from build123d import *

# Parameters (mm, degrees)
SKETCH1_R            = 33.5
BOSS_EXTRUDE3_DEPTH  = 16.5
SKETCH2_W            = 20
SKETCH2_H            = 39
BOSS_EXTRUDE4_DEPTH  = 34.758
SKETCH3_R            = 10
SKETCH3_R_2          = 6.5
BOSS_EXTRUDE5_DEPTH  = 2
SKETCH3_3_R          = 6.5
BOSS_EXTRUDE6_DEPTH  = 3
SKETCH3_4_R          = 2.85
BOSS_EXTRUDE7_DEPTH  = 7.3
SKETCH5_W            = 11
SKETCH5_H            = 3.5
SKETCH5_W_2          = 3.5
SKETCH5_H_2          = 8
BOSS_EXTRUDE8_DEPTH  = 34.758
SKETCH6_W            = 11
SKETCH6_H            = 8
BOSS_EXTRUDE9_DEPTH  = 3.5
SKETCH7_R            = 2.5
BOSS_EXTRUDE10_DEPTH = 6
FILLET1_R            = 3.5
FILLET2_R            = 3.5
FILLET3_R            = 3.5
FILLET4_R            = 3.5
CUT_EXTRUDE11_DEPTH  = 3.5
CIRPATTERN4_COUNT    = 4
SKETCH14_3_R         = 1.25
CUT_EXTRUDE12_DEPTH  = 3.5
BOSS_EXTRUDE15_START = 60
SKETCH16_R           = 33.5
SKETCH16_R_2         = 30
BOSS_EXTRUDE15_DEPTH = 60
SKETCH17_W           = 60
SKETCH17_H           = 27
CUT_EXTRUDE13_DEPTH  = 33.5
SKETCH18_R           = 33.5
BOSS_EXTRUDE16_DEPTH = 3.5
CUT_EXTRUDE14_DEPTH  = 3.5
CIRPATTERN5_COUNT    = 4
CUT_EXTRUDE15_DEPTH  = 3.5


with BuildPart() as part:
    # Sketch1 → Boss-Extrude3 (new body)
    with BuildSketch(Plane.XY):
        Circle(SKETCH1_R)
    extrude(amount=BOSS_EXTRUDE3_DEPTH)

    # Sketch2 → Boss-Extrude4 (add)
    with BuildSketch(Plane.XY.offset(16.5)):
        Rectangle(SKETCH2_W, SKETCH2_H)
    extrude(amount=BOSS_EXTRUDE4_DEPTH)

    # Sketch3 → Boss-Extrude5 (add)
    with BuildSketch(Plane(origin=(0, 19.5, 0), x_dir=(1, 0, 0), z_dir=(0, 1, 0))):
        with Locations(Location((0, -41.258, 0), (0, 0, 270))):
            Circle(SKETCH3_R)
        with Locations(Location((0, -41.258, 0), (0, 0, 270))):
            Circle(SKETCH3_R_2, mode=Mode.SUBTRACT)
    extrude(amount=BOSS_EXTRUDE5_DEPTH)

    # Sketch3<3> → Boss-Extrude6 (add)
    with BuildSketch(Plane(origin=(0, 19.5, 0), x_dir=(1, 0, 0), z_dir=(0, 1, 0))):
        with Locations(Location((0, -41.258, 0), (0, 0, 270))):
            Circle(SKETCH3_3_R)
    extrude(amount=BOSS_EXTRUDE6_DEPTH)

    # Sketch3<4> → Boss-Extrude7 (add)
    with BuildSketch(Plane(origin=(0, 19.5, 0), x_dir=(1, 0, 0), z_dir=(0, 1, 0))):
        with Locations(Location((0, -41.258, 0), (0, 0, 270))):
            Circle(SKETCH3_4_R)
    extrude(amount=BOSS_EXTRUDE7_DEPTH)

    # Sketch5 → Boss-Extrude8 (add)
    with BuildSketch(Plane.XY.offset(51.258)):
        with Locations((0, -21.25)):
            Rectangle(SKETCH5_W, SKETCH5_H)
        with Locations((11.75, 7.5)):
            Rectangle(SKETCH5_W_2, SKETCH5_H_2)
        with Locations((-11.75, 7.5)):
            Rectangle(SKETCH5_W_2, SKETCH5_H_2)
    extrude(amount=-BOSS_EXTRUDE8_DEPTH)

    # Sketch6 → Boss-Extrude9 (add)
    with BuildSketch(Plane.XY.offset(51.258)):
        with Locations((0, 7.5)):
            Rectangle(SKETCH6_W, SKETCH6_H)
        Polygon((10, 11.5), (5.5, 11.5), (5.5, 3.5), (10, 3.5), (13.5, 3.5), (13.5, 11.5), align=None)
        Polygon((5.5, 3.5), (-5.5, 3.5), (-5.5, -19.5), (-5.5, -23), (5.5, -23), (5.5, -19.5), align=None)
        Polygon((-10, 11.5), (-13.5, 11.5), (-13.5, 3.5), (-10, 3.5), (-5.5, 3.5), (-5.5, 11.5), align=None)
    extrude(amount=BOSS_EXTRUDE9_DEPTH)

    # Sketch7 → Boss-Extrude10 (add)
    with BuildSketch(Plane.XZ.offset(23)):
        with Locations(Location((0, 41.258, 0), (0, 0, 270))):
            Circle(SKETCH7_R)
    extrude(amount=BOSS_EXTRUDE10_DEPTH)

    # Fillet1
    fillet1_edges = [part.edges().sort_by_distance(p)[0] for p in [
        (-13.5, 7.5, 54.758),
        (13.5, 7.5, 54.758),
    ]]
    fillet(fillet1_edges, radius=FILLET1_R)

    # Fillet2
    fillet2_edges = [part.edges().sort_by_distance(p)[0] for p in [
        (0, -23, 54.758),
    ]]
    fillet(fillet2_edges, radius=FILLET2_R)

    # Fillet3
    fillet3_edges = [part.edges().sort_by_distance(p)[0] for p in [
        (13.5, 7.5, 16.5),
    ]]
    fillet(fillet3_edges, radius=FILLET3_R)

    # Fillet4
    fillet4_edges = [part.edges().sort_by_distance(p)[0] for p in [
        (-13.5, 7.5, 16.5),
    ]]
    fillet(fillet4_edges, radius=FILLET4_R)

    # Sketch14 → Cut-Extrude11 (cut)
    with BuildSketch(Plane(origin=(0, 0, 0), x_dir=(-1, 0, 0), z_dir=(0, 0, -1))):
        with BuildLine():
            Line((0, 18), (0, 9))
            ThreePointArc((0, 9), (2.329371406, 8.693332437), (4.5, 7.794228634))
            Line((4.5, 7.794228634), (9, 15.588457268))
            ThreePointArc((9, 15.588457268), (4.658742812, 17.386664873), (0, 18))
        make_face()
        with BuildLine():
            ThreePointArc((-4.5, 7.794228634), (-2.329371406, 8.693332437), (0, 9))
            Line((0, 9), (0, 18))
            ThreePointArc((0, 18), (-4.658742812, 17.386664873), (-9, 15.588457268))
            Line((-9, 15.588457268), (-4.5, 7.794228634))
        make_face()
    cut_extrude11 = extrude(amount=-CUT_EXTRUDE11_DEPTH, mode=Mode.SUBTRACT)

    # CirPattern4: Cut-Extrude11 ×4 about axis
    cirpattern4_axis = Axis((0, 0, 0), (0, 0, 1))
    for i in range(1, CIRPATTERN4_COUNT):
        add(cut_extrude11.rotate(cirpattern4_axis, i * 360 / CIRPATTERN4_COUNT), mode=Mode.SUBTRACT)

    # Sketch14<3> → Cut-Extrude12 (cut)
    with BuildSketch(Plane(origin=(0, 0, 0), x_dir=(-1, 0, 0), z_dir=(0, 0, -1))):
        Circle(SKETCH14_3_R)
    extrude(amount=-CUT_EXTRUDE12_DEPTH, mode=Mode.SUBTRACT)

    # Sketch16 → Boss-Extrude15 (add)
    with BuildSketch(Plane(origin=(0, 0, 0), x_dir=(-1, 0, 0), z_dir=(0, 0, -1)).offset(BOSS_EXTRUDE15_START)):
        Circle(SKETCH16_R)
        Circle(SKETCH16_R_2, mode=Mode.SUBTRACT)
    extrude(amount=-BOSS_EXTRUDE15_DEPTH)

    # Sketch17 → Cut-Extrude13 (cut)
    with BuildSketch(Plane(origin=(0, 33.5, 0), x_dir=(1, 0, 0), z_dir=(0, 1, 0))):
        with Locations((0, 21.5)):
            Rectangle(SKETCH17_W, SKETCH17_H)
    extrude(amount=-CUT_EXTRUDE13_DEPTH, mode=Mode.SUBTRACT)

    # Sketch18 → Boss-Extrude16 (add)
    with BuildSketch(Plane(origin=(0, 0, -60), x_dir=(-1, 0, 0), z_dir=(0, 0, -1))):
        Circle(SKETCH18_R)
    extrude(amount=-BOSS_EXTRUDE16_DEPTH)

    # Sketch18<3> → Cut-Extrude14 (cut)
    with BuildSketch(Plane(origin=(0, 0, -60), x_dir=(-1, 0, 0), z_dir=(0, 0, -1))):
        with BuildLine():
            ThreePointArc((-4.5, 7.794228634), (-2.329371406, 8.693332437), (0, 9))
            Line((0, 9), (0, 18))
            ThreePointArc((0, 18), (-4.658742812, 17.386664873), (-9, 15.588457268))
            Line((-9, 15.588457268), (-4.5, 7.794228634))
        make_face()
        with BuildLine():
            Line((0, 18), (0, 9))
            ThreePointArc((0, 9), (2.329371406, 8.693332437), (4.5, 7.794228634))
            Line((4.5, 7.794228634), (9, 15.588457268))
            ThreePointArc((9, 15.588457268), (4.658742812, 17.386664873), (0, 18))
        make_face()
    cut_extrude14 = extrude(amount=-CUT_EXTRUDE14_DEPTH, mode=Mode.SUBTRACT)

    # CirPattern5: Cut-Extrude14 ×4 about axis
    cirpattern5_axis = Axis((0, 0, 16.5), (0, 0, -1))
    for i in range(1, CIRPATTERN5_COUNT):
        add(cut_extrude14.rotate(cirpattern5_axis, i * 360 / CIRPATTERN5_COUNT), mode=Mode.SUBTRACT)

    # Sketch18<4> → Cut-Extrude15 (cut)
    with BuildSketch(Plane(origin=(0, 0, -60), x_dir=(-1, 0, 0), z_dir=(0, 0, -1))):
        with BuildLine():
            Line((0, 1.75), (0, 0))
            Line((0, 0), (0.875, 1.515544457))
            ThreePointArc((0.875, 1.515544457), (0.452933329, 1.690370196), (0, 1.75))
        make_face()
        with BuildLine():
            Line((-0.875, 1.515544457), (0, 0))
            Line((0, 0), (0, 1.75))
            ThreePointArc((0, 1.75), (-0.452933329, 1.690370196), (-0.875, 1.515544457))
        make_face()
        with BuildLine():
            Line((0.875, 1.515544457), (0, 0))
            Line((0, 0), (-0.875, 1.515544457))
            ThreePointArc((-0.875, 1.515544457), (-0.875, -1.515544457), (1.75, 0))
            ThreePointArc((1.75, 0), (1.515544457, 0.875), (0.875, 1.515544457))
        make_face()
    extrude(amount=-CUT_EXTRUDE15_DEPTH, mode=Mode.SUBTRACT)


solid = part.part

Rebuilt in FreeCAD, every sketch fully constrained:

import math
import FreeCAD as App
import Part
import Sketcher

V = App.Vector
Q = App.Units.Quantity


def edges_at(feature, points):
    """Names of the edges that pass closest to the given points."""
    edges = feature.Shape.Edges
    near = lambda p: min(range(len(edges)), key=lambda i: edges[i].distToShape(Part.Vertex(*p))[0])
    return sorted({f"Edge{near(p) + 1}" for p in points})


def add_polygon(sketch, points):
    """Adds a closed chain of lines whose ends are joined by coincident constraints."""
    first, n = sketch.GeometryCount, len(points)
    for a, b in zip(points, points[1:] + points[:1]):
        sketch.addGeometry(Part.LineSegment(App.Vector(*a, 0), App.Vector(*b, 0)), False)
    for i in range(n):
        sketch.addConstraint(Sketcher.Constraint("Coincident", first + i, 2, first + (i + 1) % n, 1))

doc = App.newDocument("Part")
body = doc.addObject("PartDesign::Body", "Body")

sketch1 = doc.addObject("Sketcher::SketchObject", "Sketch")
body.addObject(sketch1)
sketch1.AttachmentSupport = (doc.XY_Plane, [""])
sketch1.MapMode = "FlatFace"
sketch1.addGeometry(Part.Circle(V(0, 0, 0), V(0, 0, 1), 34), False)
sketch1.addConstraint([
    Sketcher.Constraint("Coincident", 0, 3, -1, 1),
    Sketcher.Constraint("Diameter", 0, Q("67 mm")),
])
pad1 = doc.addObject("PartDesign::Pad", "Pad")
body.addObject(pad1)
pad1.Profile = sketch1
pad1.Length = 16.5

sketch2 = doc.addObject("Sketcher::SketchObject", "Sketch001")
body.addObject(sketch2)
sketch2.AttachmentSupport = (doc.XY_Plane, [""])
sketch2.MapMode = "FlatFace"
sketch2.AttachmentOffset = App.Placement(V(0, 0, 16.5), App.Rotation())
add_polygon(sketch2, [(-10, 20), (-10, -20), (10, -20), (10, 20)])
sketch2.addConstraint([
    Sketcher.Constraint("Vertical", 0),
    Sketcher.Constraint("Horizontal", 1),
    Sketcher.Constraint("Vertical", 2),
    Sketcher.Constraint("Horizontal", 3),
    Sketcher.Constraint("Symmetric", 0, 2, 2, 2, -1, 1),
    Sketcher.Constraint("DistanceX", 1, 1, 1, 2, Q("20 mm")),
    Sketcher.Constraint("DistanceY", 0, 2, 0, 1, Q("39 mm")),
])
pad2 = doc.addObject("PartDesign::Pad", "Pad001")
body.addObject(pad2)
pad2.Profile = sketch2
pad2.Length = 34.758

sketch3 = doc.addObject("Sketcher::SketchObject", "Sketch002")
body.addObject(sketch3)
sketch3.AttachmentSupport = (doc.XZ_Plane, [""])
sketch3.MapMode = "FlatFace"
sketch3.AttachmentOffset = App.Placement(V(0, 0, -19.5), App.Rotation())
sketch3.addGeometry([
    Part.Circle(V(0, 41, 0), V(0, 0, 1), 10),
    Part.Circle(V(0, 41, 0), V(0, 0, 1), 6),
], False)
sketch3.addConstraint([
    Sketcher.Constraint("Coincident", 1, 3, 0, 3),
    Sketcher.Constraint("PointOnObject", 0, 3, -2),
    Sketcher.Constraint("Diameter", 0, Q("20 mm")),
    Sketcher.Constraint("Diameter", 1, Q("13 mm")),
    Sketcher.Constraint("DistanceY", -1, 1, 0, 3, Q("41.258 mm")),
])
pad3 = doc.addObject("PartDesign::Pad", "Pad002")
body.addObject(pad3)
pad3.Profile = sketch3
pad3.Length = 2
pad3.Reversed = True

sketch4 = doc.addObject("Sketcher::SketchObject", "Sketch003")
body.addObject(sketch4)
sketch4.AttachmentSupport = (doc.XZ_Plane, [""])
sketch4.MapMode = "FlatFace"
sketch4.AttachmentOffset = App.Placement(V(0, 0, -19.5), App.Rotation())
sketch4.addGeometry(Part.Circle(V(0, 41, 0), V(0, 0, 1), 6), False)
sketch4.addConstraint([
    Sketcher.Constraint("PointOnObject", 0, 3, -2),
    Sketcher.Constraint("Diameter", 0, Q("13 mm")),
    Sketcher.Constraint("DistanceY", -1, 1, 0, 3, Q("41.258 mm")),
])
pad4 = doc.addObject("PartDesign::Pad", "Pad003")
body.addObject(pad4)
pad4.Profile = sketch4
pad4.Length = 3
pad4.Reversed = True

sketch5 = doc.addObject("Sketcher::SketchObject", "Sketch004")
body.addObject(sketch5)
sketch5.AttachmentSupport = (doc.XZ_Plane, [""])
sketch5.MapMode = "FlatFace"
sketch5.AttachmentOffset = App.Placement(V(0, 0, -19.5), App.Rotation())
sketch5.addGeometry(Part.Circle(V(0, 41.3, 0), V(0, 0, 1), 2.9), False)
sketch5.addConstraint([
    Sketcher.Constraint("PointOnObject", 0, 3, -2),
    Sketcher.Constraint("Diameter", 0, Q("5.7 mm")),
    Sketcher.Constraint("DistanceY", -1, 1, 0, 3, Q("41.258 mm")),
])
pad5 = doc.addObject("PartDesign::Pad", "Pad004")
body.addObject(pad5)
pad5.Profile = sketch5
pad5.Length = 7.3
pad5.Reversed = True

sketch6 = doc.addObject("Sketcher::SketchObject", "Sketch005")
body.addObject(sketch6)
sketch6.AttachmentSupport = (doc.XY_Plane, [""])
sketch6.MapMode = "FlatFace"
sketch6.AttachmentOffset = App.Placement(V(0, 0, 51.258), App.Rotation())
add_polygon(sketch6, [(-5.5, -19.5), (-5.5, -23), (5.5, -23), (5.5, -19.5)])
add_polygon(sketch6, [(10, 11.5), (10, 3.5), (13.5, 3.5), (13.5, 11.5)])
add_polygon(sketch6, [(-13.5, 11.5), (-13.5, 3.5), (-10, 3.5), (-10, 11.5)])
sketch6.addConstraint([
    Sketcher.Constraint("Vertical", 0),
    Sketcher.Constraint("Horizontal", 1),
    Sketcher.Constraint("Vertical", 2),
    Sketcher.Constraint("Horizontal", 3),
    Sketcher.Constraint("Vertical", 4),
    Sketcher.Constraint("Horizontal", 5),
    Sketcher.Constraint("Vertical", 6),
    Sketcher.Constraint("Horizontal", 7),
    Sketcher.Constraint("Vertical", 8),
    Sketcher.Constraint("Horizontal", 9),
    Sketcher.Constraint("Vertical", 10),
    Sketcher.Constraint("Horizontal", 11),
    Sketcher.Constraint("Symmetric", 5, 2, 8, 2, -2),
    Sketcher.Constraint("Symmetric", 7, 2, 10, 2, -2),
    Sketcher.Constraint("Equal", 11, 0),
    Sketcher.Constraint("DistanceX", 1, 1, 1, 2, Q("11 mm")),
    Sketcher.Constraint("DistanceY", 4, 2, 4, 1, Q("8 mm")),
    Sketcher.Constraint("DistanceX", 5, 1, 5, 2, Q("3.5 mm")),
    Sketcher.Constraint("DistanceY", 0, 2, -1, 1, Q("23 mm")),
    Sketcher.Constraint("DistanceX", -1, 1, 4, 2, Q("10 mm")),
    Sketcher.Constraint("DistanceY", 2, 2, 4, 2, Q("23 mm")),
    Sketcher.Constraint("DistanceX", 2, 2, 5, 2, Q("8 mm")),
])
pad6 = doc.addObject("PartDesign::Pad", "Pad005")
body.addObject(pad6)
pad6.Profile = sketch6
pad6.Length = 34.758
pad6.Reversed = True

sketch7 = doc.addObject("Sketcher::SketchObject", "Sketch006")
body.addObject(sketch7)
sketch7.AttachmentSupport = (doc.XY_Plane, [""])
sketch7.MapMode = "FlatFace"
sketch7.AttachmentOffset = App.Placement(V(0, 0, 51.258), App.Rotation())
add_polygon(sketch7, [(-6, 4), (-6, -23), (6, -23), (6, 4), (14, 4), (14, 12), (-14, 12), (-14, 4)])
sketch7.addConstraint([
    Sketcher.Constraint("Vertical", 0),
    Sketcher.Constraint("Horizontal", 1),
    Sketcher.Constraint("Vertical", 2),
    Sketcher.Constraint("Horizontal", 3),
    Sketcher.Constraint("Vertical", 4),
    Sketcher.Constraint("Horizontal", 5),
    Sketcher.Constraint("Vertical", 6),
    Sketcher.Constraint("Horizontal", 7),
    Sketcher.Constraint("Symmetric", 3, 2, 6, 2, -2),
    Sketcher.Constraint("Equal", 3, 7),
    Sketcher.Constraint("Equal", 7, 4),
    Sketcher.Constraint("DistanceX", 1, 1, 1, 2, Q("11 mm")),
    Sketcher.Constraint("DistanceX", 3, 1, 3, 2, Q("8 mm")),
    Sketcher.Constraint("DistanceY", 0, 2, 0, 1, Q("26.5 mm")),
    Sketcher.Constraint("DistanceY", 0, 2, -1, 1, Q("23 mm")),
])
pad7 = doc.addObject("PartDesign::Pad", "Pad006")
body.addObject(pad7)
pad7.Profile = sketch7
pad7.Length = 3.5

sketch8 = doc.addObject("Sketcher::SketchObject", "Sketch007")
body.addObject(sketch8)
sketch8.AttachmentSupport = (doc.XZ_Plane, [""])
sketch8.MapMode = "FlatFace"
sketch8.AttachmentOffset = App.Placement(V(0, 0, 23), App.Rotation())
sketch8.addGeometry(Part.Circle(V(0, 41.3, 0), V(0, 0, 1), 2.5), False)
sketch8.addConstraint([
    Sketcher.Constraint("PointOnObject", 0, 3, -2),
    Sketcher.Constraint("Diameter", 0, Q("5 mm")),
    Sketcher.Constraint("DistanceY", -1, 1, 0, 3, Q("41.258 mm")),
])
pad8 = doc.addObject("PartDesign::Pad", "Pad007")
body.addObject(pad8)
pad8.Profile = sketch8
pad8.Length = 6
doc.recompute()

fillet = doc.addObject("PartDesign::Fillet", "Fillet")
body.addObject(fillet)
fillet.Base = (pad8, edges_at(pad8, [(-13.5, 7.5, 54.758), (13.5, 7.5, 54.758)]))
fillet.Radius = 3.5
doc.recompute()

fillet2 = doc.addObject("PartDesign::Fillet", "Fillet001")
body.addObject(fillet2)
fillet2.Base = (fillet, edges_at(fillet, [(0, -23, 54.758)]))
fillet2.Radius = 3.5
doc.recompute()

fillet3 = doc.addObject("PartDesign::Fillet", "Fillet002")
body.addObject(fillet3)
fillet3.Base = (fillet2, edges_at(fillet2, [(13.5, 7.5, 16.5)]))
fillet3.Radius = 3.5
doc.recompute()

fillet4 = doc.addObject("PartDesign::Fillet", "Fillet003")
body.addObject(fillet4)
fillet4.Base = (fillet3, edges_at(fillet3, [(-13.5, 7.5, 16.5)]))
fillet4.Radius = 3.5

sketch9 = doc.addObject("Sketcher::SketchObject", "Sketch008")
body.addObject(sketch9)
sketch9.AttachmentSupport = (doc.XY_Plane, [""])
sketch9.MapMode = "FlatFace"
sketch9.addGeometry([
    Part.ArcOfCircle(Part.Circle(V(0, 0, 0), V(0, 0, 1), 9), math.radians(90), math.radians(120)),
    Part.LineSegment(V(-4.5, 7.8, 0), V(-9, 15.6, 0)),
    Part.ArcOfCircle(Part.Circle(V(0, 0, 0), V(0, 0, 1), 18), math.radians(90), math.radians(120)),
    Part.ArcOfCircle(Part.Circle(V(0, 0, 0), V(0, 0, 1), 18), math.radians(60), math.radians(90)),
    Part.LineSegment(V(9, 15.6, 0), V(4.5, 7.8, 0)),
    Part.ArcOfCircle(Part.Circle(V(0, 0, 0), V(0, 0, 1), 9), math.radians(60), math.radians(90)),
], False)
sketch9.addConstraint([
    Sketcher.Constraint("Coincident", 0, 2, 1, 1),
    Sketcher.Constraint("Coincident", 1, 2, 2, 2),
    Sketcher.Constraint("Tangent", 2, 1, 3, 2),
    Sketcher.Constraint("Coincident", 3, 1, 4, 1),
    Sketcher.Constraint("Coincident", 4, 2, 5, 1),
    Sketcher.Constraint("Tangent", 5, 2, 0, 1),
    Sketcher.Constraint("Coincident", 0, 3, -1, 1),
    Sketcher.Constraint("Coincident", 2, 3, -1, 1),
    Sketcher.Constraint("Equal", 2, 3),
    Sketcher.Constraint("Equal", 0, 5),
    Sketcher.Constraint("PointOnObject", 2, 1, -2),
    Sketcher.Constraint("PointOnObject", 5, 2, -2),
    Sketcher.Constraint("Horizontal", 1, 2, 3, 1),
    Sketcher.Constraint("Horizontal", 0, 2, 4, 2),
    Sketcher.Constraint("Radius", 0, Q("9 mm")),
    Sketcher.Constraint("Radius", 2, Q("18 mm")),
    Sketcher.Constraint("Angle", 1, Q("120 deg")),
    Sketcher.Constraint("DistanceX", 1, 2, -1, 1, Q("9 mm")),
])
pocket1 = doc.addObject("PartDesign::Pocket", "Pocket")
body.addObject(pocket1)
pocket1.Profile = sketch9
pocket1.Length = 3.5
pocket1.Reversed = True
doc.recompute()

polarpattern = doc.addObject("PartDesign::PolarPattern", "PolarPattern")
body.addObject(polarpattern)
polarpattern.Originals = [pocket1]
polarpattern.Axis = (doc.Z_Axis, [""])
polarpattern.Angle = 360
polarpattern.Occurrences = 4
body.Tip = polarpattern

sketch10 = doc.addObject("Sketcher::SketchObject", "Sketch009")
body.addObject(sketch10)
sketch10.AttachmentSupport = (doc.XY_Plane, [""])
sketch10.MapMode = "FlatFace"
sketch10.addGeometry(Part.Circle(V(0, 0, 0), V(0, 0, 1), 1.2), False)
sketch10.addConstraint([
    Sketcher.Constraint("Coincident", 0, 3, -1, 1),
    Sketcher.Constraint("Diameter", 0, Q("2.5 mm")),
])
pocket2 = doc.addObject("PartDesign::Pocket", "Pocket001")
body.addObject(pocket2)
pocket2.Profile = sketch10
pocket2.Length = 3.5
pocket2.Reversed = True

sketch11 = doc.addObject("Sketcher::SketchObject", "Sketch010")
body.addObject(sketch11)
sketch11.AttachmentSupport = (doc.XY_Plane, [""])
sketch11.MapMode = "FlatFace"
sketch11.AttachmentOffset = App.Placement(V(0, 0, -60), App.Rotation())
sketch11.addGeometry([
    Part.Circle(V(0, 0, 0), V(0, 0, 1), 34),
    Part.Circle(V(0, 0, 0), V(0, 0, 1), 30),
], False)
sketch11.addConstraint([
    Sketcher.Constraint("Coincident", 0, 3, -1, 1),
    Sketcher.Constraint("Coincident", 1, 3, -1, 1),
    Sketcher.Constraint("Diameter", 0, Q("67 mm")),
    Sketcher.Constraint("Diameter", 1, Q("60 mm")),
])
pad9 = doc.addObject("PartDesign::Pad", "Pad008")
body.addObject(pad9)
pad9.Profile = sketch11
pad9.Length = 60

sketch12 = doc.addObject("Sketcher::SketchObject", "Sketch011")
body.addObject(sketch12)
sketch12.AttachmentSupport = (doc.XZ_Plane, [""])
sketch12.MapMode = "FlatFace"
sketch12.AttachmentOffset = App.Placement(V(0, 0, -33.5), App.Rotation())
add_polygon(sketch12, [(-30, -35), (-30, -8), (30, -8), (30, -35)])
sketch12.addConstraint([
    Sketcher.Constraint("Vertical", 0),
    Sketcher.Constraint("Horizontal", 1),
    Sketcher.Constraint("Vertical", 2),
    Sketcher.Constraint("Horizontal", 3),
    Sketcher.Constraint("DistanceX", 1, 1, 1, 2, Q("60 mm")),
    Sketcher.Constraint("DistanceY", 0, 1, 0, 2, Q("27 mm")),
    Sketcher.Constraint("DistanceX", 0, 2, -1, 1, Q("30 mm")),
    Sketcher.Constraint("DistanceY", 0, 2, -1, 1, Q("8 mm")),
])
pocket3 = doc.addObject("PartDesign::Pocket", "Pocket002")
body.addObject(pocket3)
pocket3.Profile = sketch12
pocket3.Length = 33.5
pocket3.Reversed = True

sketch13 = doc.addObject("Sketcher::SketchObject", "Sketch012")
body.addObject(sketch13)
sketch13.AttachmentSupport = (doc.XY_Plane, [""])
sketch13.MapMode = "FlatFace"
sketch13.AttachmentOffset = App.Placement(V(0, 0, -60), App.Rotation())
sketch13.addGeometry(Part.Circle(V(0, 0, 0), V(0, 0, 1), 34), False)
sketch13.addConstraint([
    Sketcher.Constraint("Coincident", 0, 3, -1, 1),
    Sketcher.Constraint("Diameter", 0, Q("67 mm")),
])
pad10 = doc.addObject("PartDesign::Pad", "Pad009")
body.addObject(pad10)
pad10.Profile = sketch13
pad10.Length = 3.5

sketch14 = doc.addObject("Sketcher::SketchObject", "Sketch013")
body.addObject(sketch14)
sketch14.AttachmentSupport = (doc.XY_Plane, [""])
sketch14.MapMode = "FlatFace"
sketch14.AttachmentOffset = App.Placement(V(0, 0, -60), App.Rotation())
sketch14.addGeometry([
    Part.ArcOfCircle(Part.Circle(V(0, 0, 0), V(0, 0, 1), 9), math.radians(60), math.radians(90)),
    Part.ArcOfCircle(Part.Circle(V(0, 0, 0), V(0, 0, 1), 9), math.radians(90), math.radians(120)),
    Part.LineSegment(V(-4.5, 7.8, 0), V(-9, 15.6, 0)),
    Part.ArcOfCircle(Part.Circle(V(0, 0, 0), V(0, 0, 1), 18), math.radians(90), math.radians(120)),
    Part.ArcOfCircle(Part.Circle(V(0, 0, 0), V(0, 0, 1), 18), math.radians(60), math.radians(90)),
    Part.LineSegment(V(9, 15.6, 0), V(4.5, 7.8, 0)),
], False)
sketch14.addConstraint([
    Sketcher.Constraint("Tangent", 0, 2, 1, 1),
    Sketcher.Constraint("Coincident", 1, 2, 2, 1),
    Sketcher.Constraint("Coincident", 2, 2, 3, 2),
    Sketcher.Constraint("Tangent", 3, 1, 4, 2),
    Sketcher.Constraint("Coincident", 4, 1, 5, 1),
    Sketcher.Constraint("Coincident", 5, 2, 0, 1),
    Sketcher.Constraint("Coincident", 0, 3, -1, 1),
    Sketcher.Constraint("Coincident", 3, 3, -1, 1),
    Sketcher.Constraint("Equal", 0, 1),
    Sketcher.Constraint("Equal", 3, 4),
    Sketcher.Constraint("PointOnObject", 0, 2, -2),
    Sketcher.Constraint("PointOnObject", 3, 1, -2),
    Sketcher.Constraint("Horizontal", 2, 2, 4, 1),
    Sketcher.Constraint("Horizontal", 1, 2, 5, 2),
    Sketcher.Constraint("Radius", 0, Q("9 mm")),
    Sketcher.Constraint("Radius", 3, Q("18 mm")),
    Sketcher.Constraint("Angle", 2, Q("120 deg")),
    Sketcher.Constraint("DistanceX", 2, 2, -1, 1, Q("9 mm")),
])
pocket4 = doc.addObject("PartDesign::Pocket", "Pocket003")
body.addObject(pocket4)
pocket4.Profile = sketch14
pocket4.Length = 3.5
pocket4.Reversed = True
doc.recompute()

polarpattern2 = doc.addObject("PartDesign::PolarPattern", "PolarPattern001")
body.addObject(polarpattern2)
polarpattern2.Originals = [pocket4]
polarpattern2.Axis = (doc.Z_Axis, [""])
polarpattern2.Angle = 360
polarpattern2.Occurrences = 4
body.Tip = polarpattern2

sketch15 = doc.addObject("Sketcher::SketchObject", "Sketch014")
body.addObject(sketch15)
sketch15.AttachmentSupport = (doc.XY_Plane, [""])
sketch15.MapMode = "FlatFace"
sketch15.AttachmentOffset = App.Placement(V(0, 0, -60), App.Rotation())
sketch15.addGeometry([
    Part.ArcOfCircle(Part.Circle(V(0, 0, 0), V(0, 0, 1), 1.8), math.radians(90), math.radians(120)),
    Part.ArcOfCircle(Part.Circle(V(0, 0, 0), V(0, 0, 1), 1.8), math.radians(60), math.radians(90)),
    Part.ArcOfCircle(Part.Circle(V(0, 0, 0), V(0, 0, 1), 1.8), math.radians(180), math.radians(420)),
    Part.ArcOfCircle(Part.Circle(V(0, 0, 0), V(0, 0, 1), 1.7), math.radians(120), math.radians(180)),
], False)
sketch15.addConstraint([
    Sketcher.Constraint("Tangent", 0, 1, 1, 2),
    Sketcher.Constraint("Tangent", 1, 1, 2, 2),
    Sketcher.Constraint("Tangent", 2, 1, 3, 2),
    Sketcher.Constraint("Tangent", 3, 1, 0, 2),
    Sketcher.Constraint("Coincident", 0, 3, -1, 1),
    Sketcher.Constraint("Equal", 0, 1),
    Sketcher.Constraint("PointOnObject", 0, 1, -2),
    Sketcher.Constraint("PointOnObject", 2, 1, -1),
    Sketcher.Constraint("Horizontal", 1, 1, 3, 1),
    Sketcher.Constraint("Radius", 0, Q("1.75 mm")),
    Sketcher.Constraint("DistanceX", 3, 1, 1, 1, Q("1.75 mm")),
])
pocket5 = doc.addObject("PartDesign::Pocket", "Pocket004")
body.addObject(pocket5)
pocket5.Profile = sketch15
pocket5.Length = 3.5
pocket5.Reversed = True

doc.recompute()
